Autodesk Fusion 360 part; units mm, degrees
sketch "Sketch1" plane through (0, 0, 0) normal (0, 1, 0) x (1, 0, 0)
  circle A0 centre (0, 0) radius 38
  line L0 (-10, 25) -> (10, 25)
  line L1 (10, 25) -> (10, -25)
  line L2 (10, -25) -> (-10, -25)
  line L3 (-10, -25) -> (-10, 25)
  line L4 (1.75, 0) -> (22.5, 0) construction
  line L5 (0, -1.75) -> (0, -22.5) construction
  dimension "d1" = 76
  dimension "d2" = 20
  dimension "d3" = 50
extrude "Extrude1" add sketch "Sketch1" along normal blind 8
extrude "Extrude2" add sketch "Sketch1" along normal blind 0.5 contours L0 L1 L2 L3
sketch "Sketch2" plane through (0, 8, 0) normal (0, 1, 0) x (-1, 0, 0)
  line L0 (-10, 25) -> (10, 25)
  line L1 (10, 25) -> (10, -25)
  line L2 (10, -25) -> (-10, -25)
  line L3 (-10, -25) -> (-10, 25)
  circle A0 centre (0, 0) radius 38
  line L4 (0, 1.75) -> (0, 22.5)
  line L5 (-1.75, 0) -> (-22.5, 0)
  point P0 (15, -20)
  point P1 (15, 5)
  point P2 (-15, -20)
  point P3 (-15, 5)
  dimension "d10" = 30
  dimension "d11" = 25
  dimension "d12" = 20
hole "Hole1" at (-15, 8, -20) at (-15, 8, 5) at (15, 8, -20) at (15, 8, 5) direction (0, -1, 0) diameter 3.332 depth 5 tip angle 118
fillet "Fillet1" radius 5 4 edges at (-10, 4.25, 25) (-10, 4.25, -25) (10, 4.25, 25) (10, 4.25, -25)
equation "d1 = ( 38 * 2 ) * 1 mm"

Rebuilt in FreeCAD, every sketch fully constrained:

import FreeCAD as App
import Part
import Sketcher


def edges_at(feature, points):
    """Names of the edges that pass closest to the given points."""
    edges = feature.Shape.Edges
    near = lambda p: min(range(len(edges)), key=lambda i: edges[i].distToShape(Part.Vertex(*p))[0])
    return sorted({f"Edge{near(p) + 1}" for p in points})


def add_polygon(sketch, points):
    """Adds a closed chain of lines whose ends are joined by coincident constraints."""
    first, n = sketch.GeometryCount, len(points)
    for a, b in zip(points, points[1:] + points[:1]):
        sketch.addGeometry(Part.LineSegment(App.Vector(*a, 0), App.Vector(*b, 0)), False)
    for i in range(n):
        sketch.addConstraint(Sketcher.Constraint("Coincident", first + i, 2, first + (i + 1) % n, 1))

doc = App.newDocument("Part")
body = doc.addObject("PartDesign::Body", "Body")

sketch1 = doc.addObject("Sketcher::SketchObject", "Sketch")
body.addObject(sketch1)
sketch1.AttachmentSupport = (doc.XZ_Plane, [""])
sketch1.MapMode = "FlatFace"
sketch1.addGeometry(Part.Circle(App.Vector(0, 0, 0), App.Vector(0, 0, 1), 38), False)
add_polygon(sketch1, [(-10, 25), (-10, -25), (10, -25), (10, 25)])
sketch1.addConstraint(Sketcher.Constraint("Vertical", 1))
sketch1.addConstraint(Sketcher.Constraint("Horizontal", 2))
sketch1.addConstraint(Sketcher.Constraint("Vertical", 3))
sketch1.addConstraint(Sketcher.Constraint("Horizontal", 4))
sketch1.addConstraint(Sketcher.Constraint("Coincident", 0, 3, -1, 1))
sketch1.addConstraint(Sketcher.Constraint("Symmetric", 1, 2, 3, 2, -1, 1))
sketch1.addConstraint(Sketcher.Constraint("Diameter", 0, 76.0))
sketch1.addConstraint(Sketcher.Constraint("DistanceX", 2, 1, 2, 2, 20.0))
sketch1.addConstraint(Sketcher.Constraint("DistanceY", 1, 2, 1, 1, 50.0))
pad1 = doc.addObject("PartDesign::Pad", "Pad")
body.addObject(pad1)
pad1.Profile = sketch1
pad1.Length = 8
pad1.Reversed = True

sketch2 = doc.addObject("Sketcher::SketchObject", "Sketch001")
body.addObject(sketch2)
sketch2.AttachmentSupport = (doc.XZ_Plane, [""])
sketch2.MapMode = "FlatFace"
add_polygon(sketch2, [(10, -25), (-10, -25), (-10, 25), (10, 25)])
sketch2.addConstraint(Sketcher.Constraint("Horizontal", 0))
sketch2.addConstraint(Sketcher.Constraint("Vertical", 1))
sketch2.addConstraint(Sketcher.Constraint("Horizontal", 2))
sketch2.addConstraint(Sketcher.Constraint("Vertical", 3))
sketch2.addConstraint(Sketcher.Constraint("Symmetric", 0, 2, 2, 2, -1, 1))
sketch2.addConstraint(Sketcher.Constraint("DistanceX", 0, 2, 0, 1, 20.0))
sketch2.addConstraint(Sketcher.Constraint("DistanceY", 1, 1, 1, 2, 50.0))
pad2 = doc.addObject("PartDesign::Pad", "Pad001")
body.addObject(pad2)
pad2.Profile = sketch2
pad2.Length = 0.5
pad2.Reversed = True

sketch3 = doc.addObject("Sketcher::SketchObject", "Sketch002")
body.addObject(sketch3)
sketch3.AttachmentSupport = (doc.XZ_Plane, [""])
sketch3.MapMode = "FlatFace"
sketch3.AttachmentOffset = App.Placement(App.Vector(0, 0, -8), App.Rotation())
sketch3.addGeometry(Part.Circle(App.Vector(-15, -20, 0), App.Vector(0, 0, 1), 1.666), False)
sketch3.addGeometry(Part.Circle(App.Vector(-15, 5, 0), App.Vector(0, 0, 1), 1.666), False)
sketch3.addGeometry(Part.Circle(App.Vector(15, -20, 0), App.Vector(0, 0, 1), 1.666), False)
sketch3.addGeometry(Part.Circle(App.Vector(15, 5, 0), App.Vector(0, 0, 1), 1.666), False)
sketch3.addConstraint(Sketcher.Constraint("Equal", 0, 1))
sketch3.addConstraint(Sketcher.Constraint("Equal", 1, 2))
sketch3.addConstraint(Sketcher.Constraint("Equal", 2, 3))
sketch3.addConstraint(Sketcher.Constraint("Symmetric", 0, 3, 2, 3, -2))
sketch3.addConstraint(Sketcher.Constraint("Symmetric", 1, 3, 3, 3, -2))
sketch3.addConstraint(Sketcher.Constraint("Vertical", 0, 3, 1, 3))
sketch3.addConstraint(Sketcher.Constraint("Diameter", 0, 3.332))
sketch3.addConstraint(Sketcher.Constraint("DistanceX", 0, 3, -1, 1, 15.0))
sketch3.addConstraint(Sketcher.Constraint("DistanceY", 0, 3, -1, 1, 20.0))
sketch3.addConstraint(Sketcher.Constraint("DistanceY", -1, 1, 1, 3, 5.0))
doc.recompute()
hole = doc.addObject("PartDesign::Hole", "Hole")
body.addObject(hole)
hole.Profile = sketch3
hole.ThreadType = "None"
hole.Diameter = 3.332
hole.DepthType = "Dimension"
hole.Depth = 5
hole.DrillPoint = "Angled"
hole.DrillPointAngle = 118
hole.Reversed = True
doc.recompute()

fillet = doc.addObject("PartDesign::Fillet", "Fillet")
body.addObject(fillet)
fillet.Base = (hole, edges_at(hole, [
    (-10, 4.25, 25),
    (-10, 4.25, -25),
    (10, 4.25, 25),
    (10, 4.25, -25),
]))
fillet.Radius = 5

doc.recompute()
